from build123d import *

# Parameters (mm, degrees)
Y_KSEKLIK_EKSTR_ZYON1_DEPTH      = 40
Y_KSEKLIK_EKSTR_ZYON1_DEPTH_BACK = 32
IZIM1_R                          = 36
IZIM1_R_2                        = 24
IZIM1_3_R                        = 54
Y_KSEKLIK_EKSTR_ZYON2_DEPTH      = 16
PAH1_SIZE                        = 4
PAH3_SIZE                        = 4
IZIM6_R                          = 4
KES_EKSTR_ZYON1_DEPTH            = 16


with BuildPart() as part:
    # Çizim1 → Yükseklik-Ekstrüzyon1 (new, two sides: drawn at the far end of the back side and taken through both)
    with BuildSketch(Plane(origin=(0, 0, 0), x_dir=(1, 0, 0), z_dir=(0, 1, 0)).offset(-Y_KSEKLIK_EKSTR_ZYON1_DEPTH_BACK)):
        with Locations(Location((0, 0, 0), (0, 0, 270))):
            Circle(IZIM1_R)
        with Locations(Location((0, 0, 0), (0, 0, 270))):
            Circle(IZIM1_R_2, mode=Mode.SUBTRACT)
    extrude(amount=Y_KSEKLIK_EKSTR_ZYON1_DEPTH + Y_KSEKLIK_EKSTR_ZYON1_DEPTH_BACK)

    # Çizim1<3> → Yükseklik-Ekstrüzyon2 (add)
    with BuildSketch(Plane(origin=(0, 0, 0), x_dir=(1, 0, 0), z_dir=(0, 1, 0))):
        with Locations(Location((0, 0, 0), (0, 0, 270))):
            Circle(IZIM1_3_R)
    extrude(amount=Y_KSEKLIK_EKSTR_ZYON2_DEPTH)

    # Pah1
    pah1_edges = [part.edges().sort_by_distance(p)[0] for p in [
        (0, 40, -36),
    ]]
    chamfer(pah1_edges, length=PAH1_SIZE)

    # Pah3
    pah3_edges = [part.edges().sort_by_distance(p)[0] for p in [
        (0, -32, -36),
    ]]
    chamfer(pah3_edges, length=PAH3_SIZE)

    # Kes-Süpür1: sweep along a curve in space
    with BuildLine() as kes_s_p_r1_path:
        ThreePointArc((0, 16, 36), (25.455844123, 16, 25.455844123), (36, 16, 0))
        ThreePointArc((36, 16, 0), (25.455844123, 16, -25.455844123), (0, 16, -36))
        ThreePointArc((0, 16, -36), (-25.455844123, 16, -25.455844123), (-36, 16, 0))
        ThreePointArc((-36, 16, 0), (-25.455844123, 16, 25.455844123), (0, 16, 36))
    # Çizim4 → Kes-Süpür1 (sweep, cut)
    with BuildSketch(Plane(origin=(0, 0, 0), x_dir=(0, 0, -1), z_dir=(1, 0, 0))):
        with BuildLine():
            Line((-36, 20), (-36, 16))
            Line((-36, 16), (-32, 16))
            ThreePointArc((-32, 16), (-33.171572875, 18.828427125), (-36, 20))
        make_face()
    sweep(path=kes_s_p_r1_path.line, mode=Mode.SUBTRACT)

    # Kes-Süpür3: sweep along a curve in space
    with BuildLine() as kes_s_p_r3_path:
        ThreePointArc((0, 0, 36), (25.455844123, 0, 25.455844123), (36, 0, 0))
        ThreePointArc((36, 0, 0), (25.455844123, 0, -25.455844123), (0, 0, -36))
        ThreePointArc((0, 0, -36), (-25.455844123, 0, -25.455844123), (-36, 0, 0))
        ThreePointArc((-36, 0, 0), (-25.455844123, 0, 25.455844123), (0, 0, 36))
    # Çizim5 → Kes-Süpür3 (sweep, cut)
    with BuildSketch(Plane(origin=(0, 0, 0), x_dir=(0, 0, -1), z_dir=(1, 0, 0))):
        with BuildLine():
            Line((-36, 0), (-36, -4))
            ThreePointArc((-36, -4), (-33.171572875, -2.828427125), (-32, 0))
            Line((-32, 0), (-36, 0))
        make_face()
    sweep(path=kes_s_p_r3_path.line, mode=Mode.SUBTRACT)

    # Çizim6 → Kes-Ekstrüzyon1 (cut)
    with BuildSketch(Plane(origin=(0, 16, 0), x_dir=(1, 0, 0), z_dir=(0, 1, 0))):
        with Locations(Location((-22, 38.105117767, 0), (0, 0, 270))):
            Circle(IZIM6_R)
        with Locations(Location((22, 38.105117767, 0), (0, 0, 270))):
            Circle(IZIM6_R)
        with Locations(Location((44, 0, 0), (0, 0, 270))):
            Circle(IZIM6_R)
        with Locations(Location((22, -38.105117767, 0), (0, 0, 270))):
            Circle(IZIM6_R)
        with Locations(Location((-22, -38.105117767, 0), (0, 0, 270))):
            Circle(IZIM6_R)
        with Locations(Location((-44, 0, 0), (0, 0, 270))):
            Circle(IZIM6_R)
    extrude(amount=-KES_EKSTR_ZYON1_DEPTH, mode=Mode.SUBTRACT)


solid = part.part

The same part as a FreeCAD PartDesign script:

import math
import FreeCAD as App
import Part
import Sketcher
Q = App.Units.Quantity


def edges_at(feature, points):
    """Names of the edges that pass closest to the given points."""
    edges = feature.Shape.Edges
    near = lambda p: min(range(len(edges)), key=lambda i: edges[i].distToShape(Part.Vertex(*p))[0])
    return sorted({f"Edge{near(p) + 1}" for p in points})

doc = App.newDocument("Part")
body = doc.addObject("PartDesign::Body", "Body")

# Sketch on XZ plane
sketch1 = doc.addObject("Sketcher::SketchObject", "Sketch")
body.addObject(sketch1)
sketch1.AttachmentSupport = (doc.XZ_Plane, [""])
sketch1.MapMode = "FlatFace"
sketch1.addGeometry([
    Part.Circle(App.Vector(0, 0, 0), App.Vector(0, 0, 1), 36),
    Part.Circle(App.Vector(0, 0, 0), App.Vector(0, 0, 1), 24),
], False)
sketch1.addConstraint([
    Sketcher.Constraint("Coincident", 0, 3, -1, 1),
    Sketcher.Constraint("Coincident", 1, 3, -1, 1),
    Sketcher.Constraint("Diameter", 0, Q("72 mm")),
    Sketcher.Constraint("Diameter", 1, Q("48 mm")),
])
pad1 = doc.addObject("PartDesign::Pad", "Pad")
body.addObject(pad1)
pad1.Profile = sketch1
pad1.Type = "TwoLengths"
pad1.Length = 40
pad1.Length2 = 32
pad1.Reversed = True

# Sketch on XZ plane
sketch2 = doc.addObject("Sketcher::SketchObject", "Sketch001")
body.addObject(sketch2)
sketch2.AttachmentSupport = (doc.XZ_Plane, [""])
sketch2.MapMode = "FlatFace"
sketch2.addGeometry(Part.Circle(App.Vector(0, 0, 0), App.Vector(0, 0, 1), 54), False)
sketch2.addConstraint([
    Sketcher.Constraint("Coincident", 0, 3, -1, 1),
    Sketcher.Constraint("Diameter", 0, Q("108 mm")),
])
pad2 = doc.addObject("PartDesign::Pad", "Pad001")
body.addObject(pad2)
pad2.Profile = sketch2
pad2.Length = 16
pad2.Reversed = True
doc.recompute()

chamfer = doc.addObject("PartDesign::Chamfer", "Chamfer")
body.addObject(chamfer)
chamfer.Base = (pad2, edges_at(pad2, [(0, 40, -36)]))
chamfer.Size = 4
doc.recompute()

chamfer2 = doc.addObject("PartDesign::Chamfer", "Chamfer001")
body.addObject(chamfer2)
chamfer2.Base = (chamfer, edges_at(chamfer, [(0, -32, -36)]))
chamfer2.Size = 4

# Sketch on YZ plane
sketch3 = doc.addObject("Sketcher::SketchObject", "Sketch002")
body.addObject(sketch3)
sketch3.AttachmentSupport = (doc.YZ_Plane, [""])
sketch3.MapMode = "FlatFace"
sketch3.addGeometry([
    Part.LineSegment(App.Vector(20, 36, 0), App.Vector(16, 36, 0)),
    Part.LineSegment(App.Vector(16, 36, 0), App.Vector(16, 32, 0)),
    Part.ArcOfCircle(Part.Circle(App.Vector(16, 36, 0), App.Vector(0, 0, 1), 4), math.radians(-90), math.radians(0)),
], False)
sketch3.addConstraint([
    Sketcher.Constraint("Coincident", 0, 2, 1, 1),
    Sketcher.Constraint("Coincident", 1, 2, 2, 1),
    Sketcher.Constraint("Coincident", 2, 2, 0, 1),
    Sketcher.Constraint("Horizontal", 0),
    Sketcher.Constraint("Vertical", 1),
    Sketcher.Constraint("Coincident", 0, 2, 2, 3),
    Sketcher.Constraint("Radius", 2, Q("4 mm")),
    Sketcher.Constraint("DistanceX", -1, 1, 2, 3, Q("16 mm")),
    Sketcher.Constraint("DistanceY", -1, 1, 2, 3, Q("36 mm")),
])

# Sketch on XZ plane
sketch4 = doc.addObject("Sketcher::SketchObject", "Sketch003")
body.addObject(sketch4)
sketch4.AttachmentSupport = (doc.XZ_Plane, [""])
sketch4.MapMode = "FlatFace"
sketch4.AttachmentOffset = App.Placement(App.Vector(0, 0, -16), App.Rotation())
sketch4.addGeometry([
    Part.ArcOfCircle(Part.Circle(App.Vector(0, 0, 0), App.Vector(0, 0, 1), 36), math.radians(0), math.radians(90)),
    Part.ArcOfCircle(Part.Circle(App.Vector(0, 0, 0), App.Vector(0, 0, 1), 36), math.radians(-90), math.radians(0)),
    Part.ArcOfCircle(Part.Circle(App.Vector(0, 0, 0), App.Vector(0, 0, 1), 36), math.radians(180), math.radians(270)),
    Part.ArcOfCircle(Part.Circle(App.Vector(0, 0, 0), App.Vector(0, 0, 1), 36), math.radians(90), math.radians(180)),
], False)
sketch4.addConstraint([
    Sketcher.Constraint("Tangent", 0, 1, 1, 2),
    Sketcher.Constraint("Tangent", 1, 1, 2, 2),
    Sketcher.Constraint("Tangent", 2, 1, 3, 2),
    Sketcher.Constraint("Tangent", 3, 1, 0, 2),
    Sketcher.Constraint("Coincident", 0, 3, -1, 1),
    Sketcher.Constraint("Equal", 0, 1),
    Sketcher.Constraint("PointOnObject", 0, 1, -1),
    Sketcher.Constraint("PointOnObject", 1, 1, -2),
    Sketcher.Constraint("PointOnObject", 2, 1, -1),
    Sketcher.Constraint("PointOnObject", 3, 1, -2),
    Sketcher.Constraint("Radius", 0, Q("36 mm")),
])
doc.recompute()

subtractivepipe = doc.addObject("PartDesign::SubtractivePipe", "SubtractivePipe")
body.addObject(subtractivepipe)
subtractivepipe.Profile = sketch3
subtractivepipe.Spine = (sketch4, ["Edge1", "Edge2", "Edge3", "Edge4"])

# Sketch on YZ plane
sketch5 = doc.addObject("Sketcher::SketchObject", "Sketch004")
body.addObject(sketch5)
sketch5.AttachmentSupport = (doc.YZ_Plane, [""])
sketch5.MapMode = "FlatFace"
sketch5.addGeometry([
    Part.LineSegment(App.Vector(0, 36, 0), App.Vector(-4, 36, 0)),
    Part.ArcOfCircle(Part.Circle(App.Vector(0, 36, 0), App.Vector(0, 0, 1), 4), math.radians(180), math.radians(270)),
    Part.LineSegment(App.Vector(0, 32, 0), App.Vector(0, 36, 0)),
], False)
sketch5.addConstraint([
    Sketcher.Constraint("Coincident", 0, 2, 1, 1),
    Sketcher.Constraint("Coincident", 1, 2, 2, 1),
    Sketcher.Constraint("Coincident", 2, 2, 0, 1),
    Sketcher.Constraint("Horizontal", 0),
    Sketcher.Constraint("Vertical", 2),
    Sketcher.Constraint("Coincident", 2, 2, 1, 3),
    Sketcher.Constraint("PointOnObject", 1, 3, -2),
    Sketcher.Constraint("Radius", 1, Q("4 mm")),
    Sketcher.Constraint("DistanceY", -1, 1, 1, 3, Q("36 mm")),
])

# Sketch on XZ plane
sketch6 = doc.addObject("Sketcher::SketchObject", "Sketch005")
body.addObject(sketch6)
sketch6.AttachmentSupport = (doc.XZ_Plane, [""])
sketch6.MapMode = "FlatFace"
sketch6.addGeometry([
    Part.ArcOfCircle(Part.Circle(App.Vector(0, 0, 0), App.Vector(0, 0, 1), 36), math.radians(0), math.radians(90)),
    Part.ArcOfCircle(Part.Circle(App.Vector(0, 0, 0), App.Vector(0, 0, 1), 36), math.radians(-90), math.radians(0)),
    Part.ArcOfCircle(Part.Circle(App.Vector(0, 0, 0), App.Vector(0, 0, 1), 36), math.radians(180), math.radians(270)),
    Part.ArcOfCircle(Part.Circle(App.Vector(0, 0, 0), App.Vector(0, 0, 1), 36), math.radians(90), math.radians(180)),
], False)
sketch6.addConstraint([
    Sketcher.Constraint("Tangent", 0, 1, 1, 2),
    Sketcher.Constraint("Tangent", 1, 1, 2, 2),
    Sketcher.Constraint("Tangent", 2, 1, 3, 2),
    Sketcher.Constraint("Tangent", 3, 1, 0, 2),
    Sketcher.Constraint("Coincident", 0, 3, -1, 1),
    Sketcher.Constraint("Equal", 0, 1),
    Sketcher.Constraint("PointOnObject", 0, 1, -1),
    Sketcher.Constraint("PointOnObject", 1, 1, -2),
    Sketcher.Constraint("PointOnObject", 2, 1, -1),
    Sketcher.Constraint("PointOnObject", 3, 1, -2),
    Sketcher.Constraint("Radius", 0, Q("36 mm")),
])
doc.recompute()

subtractivepipe2 = doc.addObject("PartDesign::SubtractivePipe", "SubtractivePipe001")
body.addObject(subtractivepipe2)
subtractivepipe2.Profile = sketch5
subtractivepipe2.Spine = (sketch6, ["Edge1", "Edge2", "Edge3", "Edge4"])

# Sketch on XZ plane
sketch7 = doc.addObject("Sketcher::SketchObject", "Sketch006")
body.addObject(sketch7)
sketch7.AttachmentSupport = (doc.XZ_Plane, [""])
sketch7.MapMode = "FlatFace"
sketch7.AttachmentOffset = App.Placement(App.Vector(0, 0, -16), App.Rotation())
sketch7.addGeometry([
    Part.Circle(App.Vector(-22, -38.1, 0), App.Vector(0, 0, 1), 4),  # 0
    Part.Circle(App.Vector(22, -38.1, 0), App.Vector(0, 0, 1), 4),  # 1
    Part.Circle(App.Vector(44, 0, 0), App.Vector(0, 0, 1), 4),  # 2
    Part.Circle(App.Vector(22, 38.1, 0), App.Vector(0, 0, 1), 4),  # 3
    Part.Circle(App.Vector(-22, 38.1, 0), App.Vector(0, 0, 1), 4),  # 4
    Part.Circle(App.Vector(-44, 0, 0), App.Vector(0, 0, 1), 4),  # 5
], False)
sketch7.addConstraint([
    Sketcher.Constraint("Equal", 0, 1),
    Sketcher.Constraint("Equal", 1, 2),
    Sketcher.Constraint("Equal", 2, 3),
    Sketcher.Constraint("Equal", 3, 4),
    Sketcher.Constraint("Equal", 4, 5),
    Sketcher.Constraint("Symmetric", 0, 3, 3, 3, -1, 1),
    Sketcher.Constraint("Symmetric", 1, 3, 4, 3, -1, 1),
    Sketcher.Constraint("Symmetric", 2, 3, 5, 3, -1, 1),
    Sketcher.Constraint("Symmetric", 0, 3, 1, 3, -2),
    Sketcher.Constraint("PointOnObject", 2, 3, -1),
    Sketcher.Constraint("Diameter", 0, Q("8 mm")),
    Sketcher.Constraint("DistanceX", 0, 3, -1, 1, Q("22 mm")),
    Sketcher.Constraint("DistanceX", -1, 1, 2, 3, Q("44 mm")),
    Sketcher.Constraint("DistanceY", 0, 3, -1, 1, Q("38.105118 mm")),
])
pocket1 = doc.addObject("PartDesign::Pocket", "Pocket")
body.addObject(pocket1)
pocket1.Profile = sketch7
pocket1.Length = 16
pocket1.Reversed = True

doc.recompute()
